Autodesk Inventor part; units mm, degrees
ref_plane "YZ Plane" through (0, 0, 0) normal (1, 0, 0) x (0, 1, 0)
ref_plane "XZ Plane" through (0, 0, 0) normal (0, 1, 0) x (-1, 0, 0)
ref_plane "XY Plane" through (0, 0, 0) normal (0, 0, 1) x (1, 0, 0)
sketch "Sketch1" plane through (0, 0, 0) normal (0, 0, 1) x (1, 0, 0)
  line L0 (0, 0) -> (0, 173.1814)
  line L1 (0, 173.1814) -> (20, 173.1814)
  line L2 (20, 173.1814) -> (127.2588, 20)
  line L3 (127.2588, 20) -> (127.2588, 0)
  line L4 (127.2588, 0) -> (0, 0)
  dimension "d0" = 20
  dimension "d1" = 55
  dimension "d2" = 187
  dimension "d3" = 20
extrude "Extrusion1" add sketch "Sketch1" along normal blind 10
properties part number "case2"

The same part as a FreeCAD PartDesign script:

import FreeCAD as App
import Part
import Sketcher
Q = App.Units.Quantity


def add_polygon(sketch, points):
    """Adds a closed chain of lines whose ends are joined by coincident constraints."""
    first, n = sketch.GeometryCount, len(points)
    for a, b in zip(points, points[1:] + points[:1]):
        sketch.addGeometry(Part.LineSegment(App.Vector(*a, 0), App.Vector(*b, 0)), False)
    for i in range(n):
        sketch.addConstraint(Sketcher.Constraint("Coincident", first + i, 2, first + (i + 1) % n, 1))

doc = App.newDocument("Part")
body = doc.addObject("PartDesign::Body", "Body")

# Sketch on XY plane
sketch1 = body.newObject("Sketcher::SketchObject", "Sketch")
sketch1.AttachmentSupport = (doc.getObject("XY_Plane"), [""])
sketch1.MapMode = "FlatFace"
add_polygon(sketch1, [(0, 173), (0, 0), (127, 0), (127, 20), (20, 173)])  # lines 0-4
sketch1.addConstraint(Sketcher.Constraint("Vertical", 0))
sketch1.addConstraint(Sketcher.Constraint("Horizontal", 1))
sketch1.addConstraint(Sketcher.Constraint("Vertical", 2))
sketch1.addConstraint(Sketcher.Constraint("Horizontal", 4))
sketch1.addConstraint(Sketcher.Constraint("Coincident", 0, 2, -1, 1))
sketch1.addConstraint(Sketcher.Constraint("Equal", 4, 2))
sketch1.addConstraint(Sketcher.Constraint("DistanceX", 4, 2, 4, 1, Q("20 mm")))
sketch1.addConstraint(Sketcher.Constraint("Distance", 3, Q("187 mm")))
sketch1.addConstraint(Sketcher.Constraint("Angle", 3, Q("125 deg")))
pad1 = body.newObject("PartDesign::Pad", "Pad")
pad1.Profile = sketch1
pad1.Length = 10

doc.recompute()
